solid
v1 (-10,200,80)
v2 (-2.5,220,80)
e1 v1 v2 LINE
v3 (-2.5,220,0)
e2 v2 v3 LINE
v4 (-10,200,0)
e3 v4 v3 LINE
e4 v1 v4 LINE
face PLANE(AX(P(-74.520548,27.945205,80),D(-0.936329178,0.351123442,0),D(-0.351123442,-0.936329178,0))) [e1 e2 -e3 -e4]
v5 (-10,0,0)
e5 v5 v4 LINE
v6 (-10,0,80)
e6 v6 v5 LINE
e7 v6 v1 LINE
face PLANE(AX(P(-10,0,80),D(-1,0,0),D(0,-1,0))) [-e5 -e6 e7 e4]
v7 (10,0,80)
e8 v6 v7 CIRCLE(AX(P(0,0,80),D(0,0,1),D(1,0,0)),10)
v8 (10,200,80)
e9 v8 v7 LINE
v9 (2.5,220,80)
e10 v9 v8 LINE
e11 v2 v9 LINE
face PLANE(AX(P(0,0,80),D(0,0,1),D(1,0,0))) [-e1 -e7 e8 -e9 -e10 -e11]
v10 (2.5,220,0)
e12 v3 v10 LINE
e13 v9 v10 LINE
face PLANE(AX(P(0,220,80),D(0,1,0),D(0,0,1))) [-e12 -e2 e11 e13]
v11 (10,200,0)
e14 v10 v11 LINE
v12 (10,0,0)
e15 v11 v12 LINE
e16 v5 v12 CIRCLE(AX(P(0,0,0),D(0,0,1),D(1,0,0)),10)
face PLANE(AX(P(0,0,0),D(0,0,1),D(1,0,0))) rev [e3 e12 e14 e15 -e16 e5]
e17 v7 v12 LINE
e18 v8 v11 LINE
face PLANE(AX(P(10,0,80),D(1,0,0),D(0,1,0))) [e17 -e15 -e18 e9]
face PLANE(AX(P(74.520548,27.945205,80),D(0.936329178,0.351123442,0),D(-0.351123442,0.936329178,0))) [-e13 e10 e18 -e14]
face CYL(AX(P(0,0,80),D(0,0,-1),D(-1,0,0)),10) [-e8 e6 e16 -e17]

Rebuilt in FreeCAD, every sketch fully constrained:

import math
import FreeCAD as App
import Part
import Sketcher

V = App.Vector

doc = App.newDocument("Part")
body = doc.addObject("PartDesign::Body", "Body")

sketch1 = body.newObject("Sketcher::SketchObject", "Sketch")
sketch1.AttachmentSupport = (doc.getObject("XY_Plane"), [""])
sketch1.MapMode = "FlatFace"
sketch1.addGeometry([
    Part.LineSegment(V(-10, 200, 0), V(-10, 0, 0)),
    Part.ArcOfCircle(Part.Circle(V(0, 0, 0), V(0, 0, 1), 10), math.radians(180), math.radians(360)),
    Part.LineSegment(V(10, 0, 0), V(10, 200, 0)),
    Part.LineSegment(V(10, 200, 0), V(2.5, 220, 0)),
    Part.LineSegment(V(2.5, 220, 0), V(-2.5, 220, 0)),
    Part.LineSegment(V(-2.5, 220, 0), V(-10, 200, 0)),
], False)
sketch1.addConstraint([
    Sketcher.Constraint("Tangent", 0, 2, 1, 1),
    Sketcher.Constraint("Tangent", 1, 2, 2, 1),
    Sketcher.Constraint("Coincident", 2, 2, 3, 1),
    Sketcher.Constraint("Coincident", 3, 2, 4, 1),
    Sketcher.Constraint("Coincident", 4, 2, 5, 1),
    Sketcher.Constraint("Coincident", 5, 2, 0, 1),
    Sketcher.Constraint("Vertical", 0),
    Sketcher.Constraint("Vertical", 2),
    Sketcher.Constraint("Horizontal", 4),
    Sketcher.Constraint("Coincident", 1, 3, -1, 1),
    Sketcher.Constraint("Horizontal", 2, 2, 5, 2),
    Sketcher.Constraint("Equal", 3, 5),
    Sketcher.Constraint("Radius", 1, 10.0),
    Sketcher.Constraint("DistanceX", 4, 2, 4, 1, 5.0),
    Sketcher.Constraint("DistanceY", 0, 2, 0, 1, 200.0),
    Sketcher.Constraint("DistanceY", -1, 1, 3, 2, 220.0),
])
pad1 = body.newObject("PartDesign::Pad", "Pad")
pad1.Profile = sketch1
pad1.Length = 80

doc.recompute()
